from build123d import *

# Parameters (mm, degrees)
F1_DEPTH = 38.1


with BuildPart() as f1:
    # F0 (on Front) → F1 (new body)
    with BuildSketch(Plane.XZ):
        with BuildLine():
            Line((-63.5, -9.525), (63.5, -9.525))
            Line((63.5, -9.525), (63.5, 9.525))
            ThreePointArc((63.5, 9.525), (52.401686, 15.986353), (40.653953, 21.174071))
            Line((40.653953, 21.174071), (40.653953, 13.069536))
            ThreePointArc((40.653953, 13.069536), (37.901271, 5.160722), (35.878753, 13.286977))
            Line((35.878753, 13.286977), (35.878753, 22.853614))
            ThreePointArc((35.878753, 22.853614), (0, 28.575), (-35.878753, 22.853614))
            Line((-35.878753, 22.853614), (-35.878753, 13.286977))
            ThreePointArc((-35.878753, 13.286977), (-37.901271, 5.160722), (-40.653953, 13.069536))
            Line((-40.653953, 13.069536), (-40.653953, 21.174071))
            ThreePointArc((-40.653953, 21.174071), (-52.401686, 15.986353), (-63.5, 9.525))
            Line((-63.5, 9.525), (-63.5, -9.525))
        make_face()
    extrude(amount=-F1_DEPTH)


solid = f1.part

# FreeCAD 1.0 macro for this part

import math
import FreeCAD as App
import Part
import Sketcher

V = App.Vector
Q = App.Units.Quantity

doc = App.newDocument("Part")
body = doc.addObject("PartDesign::Body", "Body")

# Sketch on XZ plane
sketch1 = doc.addObject("Sketcher::SketchObject", "Sketch")
body.addObject(sketch1)
sketch1.AttachmentSupport = (doc.XZ_Plane, [""])
sketch1.MapMode = "FlatFace"
sketch1.addGeometry([
    Part.LineSegment(V(-63.5, -9.525, 0), V(63.5, -9.525, 0)),  # 0
    Part.LineSegment(V(63.5, -9.525, 0), V(63.5, 9.525, 0)),  # 1
    Part.ArcOfCircle(Part.Circle(V(0.000022, -86.783291, 0), V(0, 0, 1), 115.358286), math.radians(56.601509), math.radians(69.364933)),  # 2
    Part.LineSegment(V(40.653953, 21.174071, 0), V(40.653953, 13.069536, 0)),  # 3
    Part.ArcOfCircle(Part.Circle(V(38.1, 9.525, 0), V(0, 0, 1), 4.3688), math.radians(120.559588), math.radians(414.226033)),  # 4
    Part.LineSegment(V(35.878753, 13.286977, 0), V(35.878753, 22.853614, 0)),  # 5
    Part.ArcOfCircle(Part.Circle(V(0, -86.783339, 0), V(0, 0, 1), 115.358339), math.radians(71.879288), math.radians(108.120712)),  # 6
    Part.LineSegment(V(-35.878753, 22.853614, 0), V(-35.878753, 13.286977, 0)),  # 7
    Part.ArcOfCircle(Part.Circle(V(-38.1, 9.525, 0), V(0, 0, 1), 4.3688), math.radians(125.773967), math.radians(419.440412)),  # 8
    Part.LineSegment(V(-40.653953, 13.069536, 0), V(-40.653953, 21.174071, 0)),  # 9
    Part.ArcOfCircle(Part.Circle(V(-0.000022, -86.783291, 0), V(0, 0, 1), 115.358286), math.radians(110.635067), math.radians(123.398491)),  # 10
    Part.LineSegment(V(-63.5, 9.525, 0), V(-63.5, -9.525, 0)),  # 11
], False)
sketch1.addConstraint([
    Sketcher.Constraint("Coincident", 0, 2, 1, 1),
    Sketcher.Constraint("Coincident", 1, 2, 2, 1),
    Sketcher.Constraint("Coincident", 2, 2, 3, 1),
    Sketcher.Constraint("Coincident", 3, 2, 4, 2),
    Sketcher.Constraint("Coincident", 4, 1, 5, 1),
    Sketcher.Constraint("Coincident", 5, 2, 6, 1),
    Sketcher.Constraint("Coincident", 6, 2, 7, 1),
    Sketcher.Constraint("Coincident", 7, 2, 8, 2),
    Sketcher.Constraint("Coincident", 8, 1, 9, 1),
    Sketcher.Constraint("Coincident", 9, 2, 10, 1),
    Sketcher.Constraint("Coincident", 10, 2, 11, 1),
    Sketcher.Constraint("Coincident", 11, 2, 0, 1),
    Sketcher.Constraint("Horizontal", 0),
    Sketcher.Constraint("Vertical", 1),
    Sketcher.Constraint("Vertical", 3),
    Sketcher.Constraint("Vertical", 5),
    Sketcher.Constraint("Vertical", 7),
    Sketcher.Constraint("Vertical", 9),
    Sketcher.Constraint("Vertical", 11),
    Sketcher.Constraint("Equal", 4, 8),
    Sketcher.Constraint("Equal", 2, 10),
    Sketcher.Constraint("Symmetric", 0, 2, 10, 2, -1, 1),
    Sketcher.Constraint("Symmetric", 4, 3, 8, 3, -2),
    Sketcher.Constraint("Symmetric", 2, 3, 10, 3, -2),
    Sketcher.Constraint("Symmetric", 5, 2, 6, 2, -2),
    Sketcher.Constraint("Horizontal", 8, 3, 1, 2),
    Sketcher.Constraint("Horizontal", 3, 2, 8, 1),
    Sketcher.Constraint("DistanceX", 0, 1, 0, 2, Q("5 in")),
    Sketcher.Constraint("Radius", 4, Q("0.172 in")),
    Sketcher.Constraint("DistanceX", 8, 3, 4, 3, Q("3 in")),
    Sketcher.Constraint("DistanceY", 1, 1, 1, 2, Q("0.75 in")),
    Sketcher.Constraint("Radius", 6, Q("115.358339 mm")),
    Sketcher.Constraint("DistanceX", 4, 1, 3, 2, Q("0.188 in")),
    Sketcher.Constraint("Radius", 2, Q("115.358286 mm")),
    Sketcher.Constraint("DistanceY", 3, 2, 5, 2, Q("0.3851999 in")),
    Sketcher.Constraint("DistanceY", 3, 2, 3, 1, Q("8.104535 mm")),
    Sketcher.Constraint("DistanceY", 5, 1, 5, 2, Q("9.566637 mm")),
])
pad1 = doc.addObject("PartDesign::Pad", "Pad")
body.addObject(pad1)
pad1.Profile = sketch1
pad1.Length = Q("1.5 in")
pad1.Reversed = True

doc.recompute()
